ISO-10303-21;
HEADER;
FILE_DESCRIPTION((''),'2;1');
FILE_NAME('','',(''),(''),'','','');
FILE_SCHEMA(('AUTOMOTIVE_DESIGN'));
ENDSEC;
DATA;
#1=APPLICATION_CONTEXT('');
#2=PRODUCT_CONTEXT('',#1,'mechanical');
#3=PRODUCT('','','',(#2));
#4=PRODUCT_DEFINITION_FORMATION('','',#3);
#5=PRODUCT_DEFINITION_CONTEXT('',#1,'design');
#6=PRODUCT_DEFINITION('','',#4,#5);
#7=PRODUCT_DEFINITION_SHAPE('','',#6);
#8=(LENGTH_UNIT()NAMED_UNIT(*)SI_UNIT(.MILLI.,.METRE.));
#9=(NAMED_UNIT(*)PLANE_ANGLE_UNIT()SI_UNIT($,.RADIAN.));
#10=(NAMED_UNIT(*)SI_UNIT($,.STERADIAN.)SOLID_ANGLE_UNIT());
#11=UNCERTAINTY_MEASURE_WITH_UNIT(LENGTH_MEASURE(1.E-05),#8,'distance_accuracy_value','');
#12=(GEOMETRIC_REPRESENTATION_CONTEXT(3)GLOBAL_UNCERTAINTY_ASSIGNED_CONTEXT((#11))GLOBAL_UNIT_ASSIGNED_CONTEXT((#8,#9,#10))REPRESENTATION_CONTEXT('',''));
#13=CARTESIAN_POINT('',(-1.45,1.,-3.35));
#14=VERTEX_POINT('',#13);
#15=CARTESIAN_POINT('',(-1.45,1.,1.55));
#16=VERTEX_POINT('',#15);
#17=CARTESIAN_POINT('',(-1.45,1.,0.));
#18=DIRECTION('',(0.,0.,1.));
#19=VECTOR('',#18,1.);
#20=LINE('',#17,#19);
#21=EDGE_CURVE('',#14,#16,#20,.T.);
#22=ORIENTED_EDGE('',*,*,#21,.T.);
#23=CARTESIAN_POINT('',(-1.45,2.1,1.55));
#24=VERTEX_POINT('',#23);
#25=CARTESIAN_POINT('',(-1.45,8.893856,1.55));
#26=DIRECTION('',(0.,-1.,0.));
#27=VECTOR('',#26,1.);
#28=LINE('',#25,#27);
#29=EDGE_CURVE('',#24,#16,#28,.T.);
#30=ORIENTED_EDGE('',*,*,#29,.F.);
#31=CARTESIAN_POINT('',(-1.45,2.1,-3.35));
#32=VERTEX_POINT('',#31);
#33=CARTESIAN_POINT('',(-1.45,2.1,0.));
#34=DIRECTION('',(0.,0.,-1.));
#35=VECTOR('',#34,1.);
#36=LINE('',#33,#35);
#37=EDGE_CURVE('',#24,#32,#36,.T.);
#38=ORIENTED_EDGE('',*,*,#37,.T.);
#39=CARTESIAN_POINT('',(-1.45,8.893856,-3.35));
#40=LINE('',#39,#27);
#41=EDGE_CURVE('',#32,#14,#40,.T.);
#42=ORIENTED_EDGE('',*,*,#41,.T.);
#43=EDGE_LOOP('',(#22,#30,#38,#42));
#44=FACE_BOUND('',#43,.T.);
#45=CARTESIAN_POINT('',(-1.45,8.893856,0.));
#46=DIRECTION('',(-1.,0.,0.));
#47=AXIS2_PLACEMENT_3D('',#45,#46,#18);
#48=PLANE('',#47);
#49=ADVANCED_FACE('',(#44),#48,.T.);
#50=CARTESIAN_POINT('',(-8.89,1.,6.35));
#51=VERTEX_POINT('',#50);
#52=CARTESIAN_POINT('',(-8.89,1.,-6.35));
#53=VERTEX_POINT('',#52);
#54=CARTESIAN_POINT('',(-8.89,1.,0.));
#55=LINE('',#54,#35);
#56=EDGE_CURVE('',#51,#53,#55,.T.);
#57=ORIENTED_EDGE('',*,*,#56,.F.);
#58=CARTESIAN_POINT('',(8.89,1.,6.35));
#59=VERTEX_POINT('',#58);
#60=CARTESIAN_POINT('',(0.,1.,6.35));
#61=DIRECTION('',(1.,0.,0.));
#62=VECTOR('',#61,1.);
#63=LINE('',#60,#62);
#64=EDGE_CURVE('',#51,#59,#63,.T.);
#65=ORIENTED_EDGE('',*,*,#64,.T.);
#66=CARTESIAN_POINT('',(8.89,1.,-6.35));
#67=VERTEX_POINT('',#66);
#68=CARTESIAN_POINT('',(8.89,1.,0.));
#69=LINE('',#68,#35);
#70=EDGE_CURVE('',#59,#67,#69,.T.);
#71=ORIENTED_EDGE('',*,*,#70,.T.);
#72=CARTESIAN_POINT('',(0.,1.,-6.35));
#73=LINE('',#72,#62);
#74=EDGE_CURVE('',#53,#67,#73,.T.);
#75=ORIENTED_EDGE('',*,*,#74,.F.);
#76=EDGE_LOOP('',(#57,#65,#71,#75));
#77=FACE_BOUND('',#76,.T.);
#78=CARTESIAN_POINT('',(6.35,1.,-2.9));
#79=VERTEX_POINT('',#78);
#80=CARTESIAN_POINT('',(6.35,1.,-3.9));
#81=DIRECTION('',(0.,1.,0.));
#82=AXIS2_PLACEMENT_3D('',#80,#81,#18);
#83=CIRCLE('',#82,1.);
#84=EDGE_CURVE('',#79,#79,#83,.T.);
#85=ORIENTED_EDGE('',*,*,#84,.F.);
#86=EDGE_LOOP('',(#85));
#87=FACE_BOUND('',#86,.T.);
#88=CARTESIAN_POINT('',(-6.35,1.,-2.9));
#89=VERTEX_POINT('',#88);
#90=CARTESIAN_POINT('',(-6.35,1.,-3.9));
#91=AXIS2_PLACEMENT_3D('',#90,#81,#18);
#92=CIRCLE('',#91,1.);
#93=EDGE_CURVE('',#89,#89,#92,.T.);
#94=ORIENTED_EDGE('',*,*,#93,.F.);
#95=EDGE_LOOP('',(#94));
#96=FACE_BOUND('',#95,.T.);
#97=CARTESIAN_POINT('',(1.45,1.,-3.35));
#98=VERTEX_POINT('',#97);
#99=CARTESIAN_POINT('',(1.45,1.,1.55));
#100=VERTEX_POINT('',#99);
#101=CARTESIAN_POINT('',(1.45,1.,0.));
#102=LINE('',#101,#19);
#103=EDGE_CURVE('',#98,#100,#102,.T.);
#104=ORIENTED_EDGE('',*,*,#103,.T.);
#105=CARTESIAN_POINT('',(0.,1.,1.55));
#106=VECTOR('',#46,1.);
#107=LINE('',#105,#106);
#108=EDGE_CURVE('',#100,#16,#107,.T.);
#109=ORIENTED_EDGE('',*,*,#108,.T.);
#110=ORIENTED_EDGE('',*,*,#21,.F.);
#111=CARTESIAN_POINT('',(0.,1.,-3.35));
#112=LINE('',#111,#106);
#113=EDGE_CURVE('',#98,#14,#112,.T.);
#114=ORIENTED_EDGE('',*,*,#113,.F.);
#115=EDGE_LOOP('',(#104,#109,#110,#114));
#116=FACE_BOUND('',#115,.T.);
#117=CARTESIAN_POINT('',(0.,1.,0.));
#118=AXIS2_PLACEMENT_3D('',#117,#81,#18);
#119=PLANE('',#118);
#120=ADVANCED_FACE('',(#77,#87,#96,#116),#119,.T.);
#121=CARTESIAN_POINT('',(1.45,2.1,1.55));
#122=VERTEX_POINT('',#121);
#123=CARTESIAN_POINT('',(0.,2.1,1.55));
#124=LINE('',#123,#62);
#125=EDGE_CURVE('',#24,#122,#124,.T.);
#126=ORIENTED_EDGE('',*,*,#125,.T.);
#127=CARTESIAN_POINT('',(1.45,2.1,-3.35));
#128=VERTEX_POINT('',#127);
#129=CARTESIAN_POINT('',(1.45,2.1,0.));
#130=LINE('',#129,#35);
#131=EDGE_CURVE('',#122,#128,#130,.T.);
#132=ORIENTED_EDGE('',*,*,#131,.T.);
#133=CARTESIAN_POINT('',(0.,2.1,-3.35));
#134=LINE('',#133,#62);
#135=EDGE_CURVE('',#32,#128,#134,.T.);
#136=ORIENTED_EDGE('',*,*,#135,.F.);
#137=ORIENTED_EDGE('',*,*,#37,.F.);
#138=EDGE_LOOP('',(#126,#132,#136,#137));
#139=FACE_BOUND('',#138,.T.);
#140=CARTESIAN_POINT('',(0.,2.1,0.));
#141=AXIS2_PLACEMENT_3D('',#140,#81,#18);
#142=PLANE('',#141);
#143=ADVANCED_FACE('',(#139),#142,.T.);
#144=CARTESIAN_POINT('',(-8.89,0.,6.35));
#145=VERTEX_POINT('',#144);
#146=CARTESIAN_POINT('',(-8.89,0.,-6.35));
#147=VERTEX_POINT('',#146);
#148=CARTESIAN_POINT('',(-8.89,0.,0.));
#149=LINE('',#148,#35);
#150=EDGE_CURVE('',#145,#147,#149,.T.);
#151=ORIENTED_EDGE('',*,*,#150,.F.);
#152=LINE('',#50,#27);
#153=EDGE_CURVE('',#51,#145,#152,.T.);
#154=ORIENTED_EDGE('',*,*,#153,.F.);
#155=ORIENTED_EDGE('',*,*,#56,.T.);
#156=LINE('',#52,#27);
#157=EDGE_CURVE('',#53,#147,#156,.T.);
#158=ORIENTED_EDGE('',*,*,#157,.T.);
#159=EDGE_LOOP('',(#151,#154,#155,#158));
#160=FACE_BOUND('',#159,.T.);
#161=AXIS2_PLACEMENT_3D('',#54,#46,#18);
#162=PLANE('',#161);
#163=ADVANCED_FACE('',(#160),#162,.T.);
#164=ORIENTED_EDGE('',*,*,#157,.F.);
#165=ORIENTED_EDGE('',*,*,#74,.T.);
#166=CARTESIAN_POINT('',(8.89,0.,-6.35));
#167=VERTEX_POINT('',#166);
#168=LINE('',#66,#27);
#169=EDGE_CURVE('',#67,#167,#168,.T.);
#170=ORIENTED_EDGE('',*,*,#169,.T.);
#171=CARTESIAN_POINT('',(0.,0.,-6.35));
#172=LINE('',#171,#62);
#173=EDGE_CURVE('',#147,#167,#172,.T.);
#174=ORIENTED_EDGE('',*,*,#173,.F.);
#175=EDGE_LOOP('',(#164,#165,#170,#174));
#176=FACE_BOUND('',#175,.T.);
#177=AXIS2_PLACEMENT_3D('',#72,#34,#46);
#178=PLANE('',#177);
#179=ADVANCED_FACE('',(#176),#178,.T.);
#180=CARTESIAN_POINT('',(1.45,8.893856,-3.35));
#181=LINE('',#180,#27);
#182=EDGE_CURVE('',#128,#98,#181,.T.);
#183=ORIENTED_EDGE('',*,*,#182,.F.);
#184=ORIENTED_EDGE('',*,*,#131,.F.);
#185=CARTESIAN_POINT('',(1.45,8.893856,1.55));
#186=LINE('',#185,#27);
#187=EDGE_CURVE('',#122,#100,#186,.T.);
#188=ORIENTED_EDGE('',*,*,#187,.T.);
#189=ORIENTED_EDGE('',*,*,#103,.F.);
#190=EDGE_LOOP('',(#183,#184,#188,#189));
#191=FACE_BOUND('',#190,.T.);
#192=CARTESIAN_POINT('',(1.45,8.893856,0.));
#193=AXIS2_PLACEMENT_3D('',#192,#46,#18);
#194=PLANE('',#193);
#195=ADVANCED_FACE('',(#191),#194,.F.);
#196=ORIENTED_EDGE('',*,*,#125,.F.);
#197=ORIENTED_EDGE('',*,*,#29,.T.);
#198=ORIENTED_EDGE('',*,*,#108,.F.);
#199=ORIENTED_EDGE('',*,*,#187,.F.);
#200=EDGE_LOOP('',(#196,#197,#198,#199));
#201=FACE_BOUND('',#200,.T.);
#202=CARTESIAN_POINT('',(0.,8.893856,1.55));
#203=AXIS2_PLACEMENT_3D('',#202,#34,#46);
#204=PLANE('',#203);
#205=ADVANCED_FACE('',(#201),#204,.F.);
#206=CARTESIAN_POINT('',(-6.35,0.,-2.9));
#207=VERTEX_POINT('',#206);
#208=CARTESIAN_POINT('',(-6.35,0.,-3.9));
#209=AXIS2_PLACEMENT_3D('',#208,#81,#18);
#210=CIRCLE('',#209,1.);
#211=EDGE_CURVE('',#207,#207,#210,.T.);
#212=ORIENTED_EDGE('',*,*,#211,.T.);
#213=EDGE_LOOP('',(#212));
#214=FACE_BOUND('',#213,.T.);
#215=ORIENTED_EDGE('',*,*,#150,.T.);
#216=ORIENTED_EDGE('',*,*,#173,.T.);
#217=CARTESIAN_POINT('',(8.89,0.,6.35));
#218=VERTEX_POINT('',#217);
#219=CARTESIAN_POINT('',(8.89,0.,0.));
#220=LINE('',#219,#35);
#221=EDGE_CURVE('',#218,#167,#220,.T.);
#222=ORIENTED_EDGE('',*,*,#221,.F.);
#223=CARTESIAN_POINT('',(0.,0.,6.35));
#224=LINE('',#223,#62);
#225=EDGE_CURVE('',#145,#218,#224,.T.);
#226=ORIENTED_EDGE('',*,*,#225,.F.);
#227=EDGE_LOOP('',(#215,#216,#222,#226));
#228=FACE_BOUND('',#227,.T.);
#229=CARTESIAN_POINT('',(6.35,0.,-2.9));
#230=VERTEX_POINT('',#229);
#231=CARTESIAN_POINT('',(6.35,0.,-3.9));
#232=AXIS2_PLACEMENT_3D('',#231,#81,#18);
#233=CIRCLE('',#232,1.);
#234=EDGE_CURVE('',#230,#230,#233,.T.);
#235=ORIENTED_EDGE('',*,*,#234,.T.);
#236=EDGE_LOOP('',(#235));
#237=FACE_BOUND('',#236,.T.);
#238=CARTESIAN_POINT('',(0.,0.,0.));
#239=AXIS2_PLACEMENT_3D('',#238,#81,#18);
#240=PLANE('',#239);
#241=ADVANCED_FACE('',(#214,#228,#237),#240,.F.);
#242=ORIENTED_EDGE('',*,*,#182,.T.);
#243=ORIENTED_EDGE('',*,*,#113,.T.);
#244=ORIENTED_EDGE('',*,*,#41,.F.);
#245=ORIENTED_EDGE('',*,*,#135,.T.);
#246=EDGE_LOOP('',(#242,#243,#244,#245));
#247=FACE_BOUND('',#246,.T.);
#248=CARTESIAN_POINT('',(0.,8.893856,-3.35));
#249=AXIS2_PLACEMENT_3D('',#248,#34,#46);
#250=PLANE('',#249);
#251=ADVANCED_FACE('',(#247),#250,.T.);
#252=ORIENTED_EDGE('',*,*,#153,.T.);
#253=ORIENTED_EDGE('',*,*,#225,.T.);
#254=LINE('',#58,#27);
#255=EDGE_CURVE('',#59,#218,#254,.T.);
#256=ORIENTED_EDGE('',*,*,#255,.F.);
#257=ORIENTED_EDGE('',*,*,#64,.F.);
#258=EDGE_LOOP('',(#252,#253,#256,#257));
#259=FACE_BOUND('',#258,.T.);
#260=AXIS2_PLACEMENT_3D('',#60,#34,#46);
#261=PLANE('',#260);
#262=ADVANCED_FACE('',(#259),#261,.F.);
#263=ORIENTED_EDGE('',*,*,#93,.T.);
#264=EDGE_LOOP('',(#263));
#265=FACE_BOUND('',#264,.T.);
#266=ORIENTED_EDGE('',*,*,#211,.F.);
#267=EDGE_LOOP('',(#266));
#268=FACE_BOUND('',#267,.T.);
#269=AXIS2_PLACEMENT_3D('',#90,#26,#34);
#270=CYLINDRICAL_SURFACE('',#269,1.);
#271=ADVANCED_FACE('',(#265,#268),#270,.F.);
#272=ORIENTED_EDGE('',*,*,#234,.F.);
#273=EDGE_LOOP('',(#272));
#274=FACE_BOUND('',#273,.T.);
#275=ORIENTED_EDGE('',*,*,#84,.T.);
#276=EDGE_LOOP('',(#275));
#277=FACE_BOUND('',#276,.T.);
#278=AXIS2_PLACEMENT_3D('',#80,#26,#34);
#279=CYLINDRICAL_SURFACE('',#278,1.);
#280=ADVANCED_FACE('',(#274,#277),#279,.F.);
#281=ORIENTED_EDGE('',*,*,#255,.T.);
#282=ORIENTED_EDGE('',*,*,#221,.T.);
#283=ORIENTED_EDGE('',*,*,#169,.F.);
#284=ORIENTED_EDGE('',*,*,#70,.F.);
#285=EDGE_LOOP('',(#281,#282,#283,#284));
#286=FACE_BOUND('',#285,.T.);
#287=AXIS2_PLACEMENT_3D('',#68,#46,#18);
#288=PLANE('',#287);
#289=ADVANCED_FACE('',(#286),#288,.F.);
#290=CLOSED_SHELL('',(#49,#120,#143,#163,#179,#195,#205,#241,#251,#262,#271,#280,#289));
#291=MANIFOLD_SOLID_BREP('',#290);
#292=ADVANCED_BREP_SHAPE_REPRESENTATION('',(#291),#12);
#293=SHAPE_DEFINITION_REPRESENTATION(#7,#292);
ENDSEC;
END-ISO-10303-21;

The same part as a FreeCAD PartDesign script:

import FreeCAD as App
import Part
import Sketcher

V = App.Vector
Q = App.Units.Quantity

doc = App.newDocument("Part")
body = doc.addObject("PartDesign::Body", "Body")

sketch1 = doc.addObject("Sketcher::SketchObject", "Sketch")
body.addObject(sketch1)
sketch1.AttachmentSupport = (doc.XZ_Plane, [""])
sketch1.MapMode = "FlatFace"
sketch1.addGeometry(Part.LineSegment(V(-8.9, -6.3, 0), V(-8.9, 6.3, 0)), False)
sketch1.addGeometry(Part.LineSegment(V(-8.9, 6.3, 0), V(8.9, 6.3, 0)), False)
sketch1.addGeometry(Part.LineSegment(V(8.9, 6.3, 0), V(8.9, -6.3, 0)), False)
sketch1.addGeometry(Part.LineSegment(V(8.9, -6.3, 0), V(-8.9, -6.3, 0)), False)
sketch1.addGeometry(Part.Circle(V(-6.3, -3.9, 0), V(0, 0, 1), 1), False)
sketch1.addGeometry(Part.Circle(V(6.3, -3.9, 0), V(0, 0, 1), 1), False)
sketch1.addConstraint(Sketcher.Constraint("Coincident", 0, 2, 1, 1))
sketch1.addConstraint(Sketcher.Constraint("Coincident", 1, 2, 2, 1))
sketch1.addConstraint(Sketcher.Constraint("Coincident", 2, 2, 3, 1))
sketch1.addConstraint(Sketcher.Constraint("Coincident", 3, 2, 0, 1))
sketch1.addConstraint(Sketcher.Constraint("Vertical", 0))
sketch1.addConstraint(Sketcher.Constraint("Horizontal", 1))
sketch1.addConstraint(Sketcher.Constraint("Vertical", 2))
sketch1.addConstraint(Sketcher.Constraint("Horizontal", 3))
sketch1.addConstraint(Sketcher.Constraint("Equal", 4, 5))
sketch1.addConstraint(Sketcher.Constraint("Symmetric", 0, 2, 2, 2, -1, 1))
sketch1.addConstraint(Sketcher.Constraint("Symmetric", 4, 3, 5, 3, -2))
sketch1.addConstraint(Sketcher.Constraint("Diameter", 4, Q("2 mm")))
sketch1.addConstraint(Sketcher.Constraint("DistanceY", 0, 1, 0, 2, Q("12.7 mm")))
sketch1.addConstraint(Sketcher.Constraint("DistanceX", 1, 1, 1, 2, Q("17.78 mm")))
sketch1.addConstraint(Sketcher.Constraint("DistanceY", 4, 3, -1, 1, Q("3.9 mm")))
sketch1.addConstraint(Sketcher.Constraint("DistanceX", 4, 3, 5, 3, Q("12.7 mm")))
pad1 = doc.addObject("PartDesign::Pad", "Pad")
body.addObject(pad1)
pad1.Profile = sketch1
pad1.Length = 1
pad1.Reversed = True

sketch2 = doc.addObject("Sketcher::SketchObject", "Sketch001")
body.addObject(sketch2)
sketch2.AttachmentSupport = (doc.XZ_Plane, [""])
sketch2.MapMode = "FlatFace"
sketch2.addGeometry(Part.LineSegment(V(-1.4, -3.4, 0), V(-1.4, 1.6, 0)), False)
sketch2.addGeometry(Part.LineSegment(V(-1.4, 1.6, 0), V(1.4, 1.6, 0)), False)
sketch2.addGeometry(Part.LineSegment(V(1.4, 1.6, 0), V(1.4, -3.4, 0)), False)
sketch2.addGeometry(Part.LineSegment(V(1.4, -3.4, 0), V(-1.4, -3.4, 0)), False)
sketch2.addConstraint(Sketcher.Constraint("Coincident", 0, 2, 1, 1))
sketch2.addConstraint(Sketcher.Constraint("Coincident", 1, 2, 2, 1))
sketch2.addConstraint(Sketcher.Constraint("Coincident", 2, 2, 3, 1))
sketch2.addConstraint(Sketcher.Constraint("Coincident", 3, 2, 0, 1))
sketch2.addConstraint(Sketcher.Constraint("Vertical", 0))
sketch2.addConstraint(Sketcher.Constraint("Horizontal", 1))
sketch2.addConstraint(Sketcher.Constraint("Vertical", 2))
sketch2.addConstraint(Sketcher.Constraint("Horizontal", 3))
sketch2.addConstraint(Sketcher.Constraint("DistanceX", 1, 1, 1, 2, Q("2.9 mm")))
sketch2.addConstraint(Sketcher.Constraint("DistanceY", 0, 1, 0, 2, Q("4.9 mm")))
sketch2.addConstraint(Sketcher.Constraint("DistanceX", 0, 2, -1, 1, Q("1.45 mm")))
sketch2.addConstraint(Sketcher.Constraint("DistanceY", -1, 1, 0, 2, Q("1.55 mm")))
pad2 = doc.addObject("PartDesign::Pad", "Pad001")
body.addObject(pad2)
pad2.Profile = sketch2
pad2.Length = 2.1
pad2.Reversed = True

doc.recompute()
